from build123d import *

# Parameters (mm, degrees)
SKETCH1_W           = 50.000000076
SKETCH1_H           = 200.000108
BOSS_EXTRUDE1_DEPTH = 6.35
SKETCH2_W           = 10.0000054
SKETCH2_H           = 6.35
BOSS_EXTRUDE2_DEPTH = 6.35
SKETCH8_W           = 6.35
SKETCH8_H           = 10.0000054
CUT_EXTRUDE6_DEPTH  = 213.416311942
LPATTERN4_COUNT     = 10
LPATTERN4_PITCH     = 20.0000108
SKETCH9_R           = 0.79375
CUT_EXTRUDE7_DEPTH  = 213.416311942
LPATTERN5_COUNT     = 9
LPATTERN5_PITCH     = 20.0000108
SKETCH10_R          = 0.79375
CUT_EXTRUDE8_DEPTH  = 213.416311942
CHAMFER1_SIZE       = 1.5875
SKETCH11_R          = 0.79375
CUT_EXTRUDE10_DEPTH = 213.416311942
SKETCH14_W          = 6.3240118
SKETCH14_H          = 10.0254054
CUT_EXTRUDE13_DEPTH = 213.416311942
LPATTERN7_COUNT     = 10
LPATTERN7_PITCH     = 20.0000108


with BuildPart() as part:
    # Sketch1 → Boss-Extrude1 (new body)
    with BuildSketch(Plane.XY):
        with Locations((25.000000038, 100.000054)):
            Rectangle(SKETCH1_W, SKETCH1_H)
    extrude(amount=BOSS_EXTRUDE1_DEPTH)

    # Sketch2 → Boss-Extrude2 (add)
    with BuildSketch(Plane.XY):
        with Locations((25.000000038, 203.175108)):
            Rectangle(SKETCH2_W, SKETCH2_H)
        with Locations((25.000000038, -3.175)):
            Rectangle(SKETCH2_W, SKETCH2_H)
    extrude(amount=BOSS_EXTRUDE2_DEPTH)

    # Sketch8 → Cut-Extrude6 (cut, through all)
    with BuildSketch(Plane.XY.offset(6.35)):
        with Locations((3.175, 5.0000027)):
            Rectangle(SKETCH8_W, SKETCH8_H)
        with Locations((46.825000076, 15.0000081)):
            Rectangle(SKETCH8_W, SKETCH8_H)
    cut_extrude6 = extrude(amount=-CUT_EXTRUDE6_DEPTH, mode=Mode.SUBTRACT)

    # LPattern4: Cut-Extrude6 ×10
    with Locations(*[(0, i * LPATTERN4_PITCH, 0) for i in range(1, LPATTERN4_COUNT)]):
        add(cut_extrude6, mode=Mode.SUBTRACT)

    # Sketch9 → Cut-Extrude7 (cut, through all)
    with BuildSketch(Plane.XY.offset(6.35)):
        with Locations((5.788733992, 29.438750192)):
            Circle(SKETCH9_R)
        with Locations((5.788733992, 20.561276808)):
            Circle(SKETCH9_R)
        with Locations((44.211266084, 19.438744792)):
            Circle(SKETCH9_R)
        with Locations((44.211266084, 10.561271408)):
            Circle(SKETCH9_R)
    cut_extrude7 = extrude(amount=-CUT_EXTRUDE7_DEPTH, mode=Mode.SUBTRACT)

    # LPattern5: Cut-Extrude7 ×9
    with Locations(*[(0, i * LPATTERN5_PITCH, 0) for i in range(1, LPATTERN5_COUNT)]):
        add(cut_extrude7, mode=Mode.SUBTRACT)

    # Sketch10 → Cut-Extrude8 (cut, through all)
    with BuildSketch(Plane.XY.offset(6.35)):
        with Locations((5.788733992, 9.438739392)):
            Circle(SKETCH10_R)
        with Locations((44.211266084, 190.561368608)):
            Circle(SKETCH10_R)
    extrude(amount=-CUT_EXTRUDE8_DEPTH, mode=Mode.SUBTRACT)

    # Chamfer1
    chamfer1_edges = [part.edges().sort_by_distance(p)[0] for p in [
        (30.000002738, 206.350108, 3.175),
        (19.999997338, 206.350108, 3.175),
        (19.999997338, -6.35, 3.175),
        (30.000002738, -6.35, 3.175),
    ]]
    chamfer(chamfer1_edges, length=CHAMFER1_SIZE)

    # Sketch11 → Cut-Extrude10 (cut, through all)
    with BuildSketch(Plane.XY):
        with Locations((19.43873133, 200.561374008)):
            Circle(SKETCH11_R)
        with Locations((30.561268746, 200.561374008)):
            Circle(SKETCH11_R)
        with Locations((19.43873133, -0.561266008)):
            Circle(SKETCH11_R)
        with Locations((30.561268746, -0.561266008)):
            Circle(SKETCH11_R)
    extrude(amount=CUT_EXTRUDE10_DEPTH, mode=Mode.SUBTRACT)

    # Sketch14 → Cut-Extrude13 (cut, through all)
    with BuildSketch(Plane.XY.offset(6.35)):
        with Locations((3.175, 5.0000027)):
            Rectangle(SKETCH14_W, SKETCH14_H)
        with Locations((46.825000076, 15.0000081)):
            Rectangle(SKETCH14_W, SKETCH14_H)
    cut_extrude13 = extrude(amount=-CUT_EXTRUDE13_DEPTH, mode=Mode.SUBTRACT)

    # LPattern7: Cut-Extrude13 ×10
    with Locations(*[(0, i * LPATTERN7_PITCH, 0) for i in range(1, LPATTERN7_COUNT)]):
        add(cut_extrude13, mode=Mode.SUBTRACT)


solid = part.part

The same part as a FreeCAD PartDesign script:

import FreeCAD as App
import Part
import Sketcher
from FreeCAD import Vector
Q = App.Units.Quantity


def edges_at(feature, points):
    """Names of the edges that pass closest to the given points."""
    edges = feature.Shape.Edges
    near = lambda p: min(range(len(edges)), key=lambda i: edges[i].distToShape(Part.Vertex(*p))[0])
    return sorted({f"Edge{near(p) + 1}" for p in points})


def add_polygon(sketch, points):
    """Adds a closed chain of lines whose ends are joined by coincident constraints."""
    first, n = sketch.GeometryCount, len(points)
    for a, b in zip(points, points[1:] + points[:1]):
        sketch.addGeometry(Part.LineSegment(App.Vector(*a, 0), App.Vector(*b, 0)), False)
    for i in range(n):
        sketch.addConstraint(Sketcher.Constraint("Coincident", first + i, 2, first + (i + 1) % n, 1))

doc = App.newDocument("Part")
body = doc.addObject("PartDesign::Body", "Body")

# Sketch on XY plane
sketch1 = doc.addObject("Sketcher::SketchObject", "Sketch")
body.addObject(sketch1)
sketch1.AttachmentSupport = (doc.XY_Plane, [""])
sketch1.MapMode = "FlatFace"
add_polygon(sketch1, [(0, 200.000108), (0, 0), (50, 0), (50, 200.000108)])  # lines 0-3
sketch1.addConstraint(Sketcher.Constraint("Vertical", 0))
sketch1.addConstraint(Sketcher.Constraint("Horizontal", 1))
sketch1.addConstraint(Sketcher.Constraint("Vertical", 2))
sketch1.addConstraint(Sketcher.Constraint("Horizontal", 3))
sketch1.addConstraint(Sketcher.Constraint("Coincident", 0, 2, -1, 1))
sketch1.addConstraint(Sketcher.Constraint("DistanceX", 1, 1, 1, 2, 50.0))
sketch1.addConstraint(Sketcher.Constraint("DistanceY", 0, 2, 0, 1, 200.000108))
pad1 = doc.addObject("PartDesign::Pad", "Pad")
body.addObject(pad1)
pad1.Profile = sketch1
pad1.Length = Q("0.25 in")

# Sketch on XY plane
sketch2 = doc.addObject("Sketcher::SketchObject", "Sketch001")
body.addObject(sketch2)
sketch2.AttachmentSupport = (doc.XY_Plane, [""])
sketch2.MapMode = "FlatFace"
add_polygon(sketch2, [(20, 206), (20, 200), (30, 200), (30, 206)])  # lines 0-3
add_polygon(sketch2, [(20, 0), (20, -6), (30, -6), (30, 0)])  # lines 4-7
sketch2.addConstraint(Sketcher.Constraint("Vertical", 0))
sketch2.addConstraint(Sketcher.Constraint("Horizontal", 1))
sketch2.addConstraint(Sketcher.Constraint("Vertical", 2))
sketch2.addConstraint(Sketcher.Constraint("Horizontal", 3))
sketch2.addConstraint(Sketcher.Constraint("Vertical", 4))
sketch2.addConstraint(Sketcher.Constraint("Horizontal", 5))
sketch2.addConstraint(Sketcher.Constraint("Vertical", 6))
sketch2.addConstraint(Sketcher.Constraint("Horizontal", 7))
sketch2.addConstraint(Sketcher.Constraint("PointOnObject", 6, 2, -1))
sketch2.addConstraint(Sketcher.Constraint("Vertical", 3, 2, 4, 2))
sketch2.addConstraint(Sketcher.Constraint("Vertical", 2, 2, 5, 2))
sketch2.addConstraint(Sketcher.Constraint("Equal", 2, 4))
sketch2.addConstraint(Sketcher.Constraint("DistanceY", 0, 2, 0, 1, Q("0.25 in")))
sketch2.addConstraint(Sketcher.Constraint("DistanceX", 1, 1, 1, 2, 10.000005))
sketch2.addConstraint(Sketcher.Constraint("DistanceY", -1, 1, 0, 2, 200.000108))
sketch2.addConstraint(Sketcher.Constraint("DistanceX", -1, 1, 0, 2, 19.999997))
pad2 = doc.addObject("PartDesign::Pad", "Pad001")
body.addObject(pad2)
pad2.Profile = sketch2
pad2.Length = Q("0.25 in")

# Sketch on XY plane
sketch3 = doc.addObject("Sketcher::SketchObject", "Sketch002")
body.addObject(sketch3)
sketch3.AttachmentSupport = (doc.XY_Plane, [""])
sketch3.MapMode = "FlatFace"
sketch3.AttachmentOffset = App.Placement(Vector(0, 0, 0.25 * 25.4), App.Rotation())
add_polygon(sketch3, [(0, 10), (0, 0), (6, 0), (6, 10)])  # lines 0-3
add_polygon(sketch3, [(44, 20), (44, 10), (50, 10), (50, 20)])  # lines 4-7
sketch3.addConstraint(Sketcher.Constraint("Vertical", 0))
sketch3.addConstraint(Sketcher.Constraint("Horizontal", 1))
sketch3.addConstraint(Sketcher.Constraint("Vertical", 2))
sketch3.addConstraint(Sketcher.Constraint("Horizontal", 3))
sketch3.addConstraint(Sketcher.Constraint("Vertical", 4))
sketch3.addConstraint(Sketcher.Constraint("Horizontal", 5))
sketch3.addConstraint(Sketcher.Constraint("Vertical", 6))
sketch3.addConstraint(Sketcher.Constraint("Horizontal", 7))
sketch3.addConstraint(Sketcher.Constraint("Coincident", 0, 2, -1, 1))
sketch3.addConstraint(Sketcher.Constraint("Horizontal", 3, 2, 4, 2))
sketch3.addConstraint(Sketcher.Constraint("Equal", 3, 5))
sketch3.addConstraint(Sketcher.Constraint("Equal", 2, 4))
sketch3.addConstraint(Sketcher.Constraint("DistanceX", 1, 1, 1, 2, Q("0.25 in")))
sketch3.addConstraint(Sketcher.Constraint("DistanceX", -1, 1, 4, 2, 43.65))
sketch3.addConstraint(Sketcher.Constraint("DistanceY", 0, 2, 0, 1, 10.000005))
pocket1 = doc.addObject("PartDesign::Pocket", "Pocket")
body.addObject(pocket1)
pocket1.Profile = sketch3
pocket1.Type = "ThroughAll"
doc.recompute()

linearpattern = doc.addObject("PartDesign::LinearPattern", "LinearPattern")
body.addObject(linearpattern)
linearpattern.Originals = [pocket1]
linearpattern.Direction = (doc.Y_Axis, [""])
linearpattern.Mode = "offset"
linearpattern.Offset = 20.000011
linearpattern.Occurrences = 10
body.Tip = linearpattern

# Sketch on XY plane
sketch4 = doc.addObject("Sketcher::SketchObject", "Sketch003")
body.addObject(sketch4)
sketch4.AttachmentSupport = (doc.XY_Plane, [""])
sketch4.MapMode = "FlatFace"
sketch4.AttachmentOffset = App.Placement(Vector(0, 0, 0.25 * 25.4), App.Rotation())
sketch4.addGeometry(Part.Circle(Vector(5.8, 29.4, 0), Vector(0, 0, 1), 0.8), False)
sketch4.addGeometry(Part.Circle(Vector(5.8, 20.6, 0), Vector(0, 0, 1), 0.8), False)
sketch4.addGeometry(Part.Circle(Vector(44.2, 19.4, 0), Vector(0, 0, 1), 0.8), False)
sketch4.addGeometry(Part.Circle(Vector(44.2, 10.6, 0), Vector(0, 0, 1), 0.8), False)
sketch4.addConstraint(Sketcher.Constraint("Equal", 0, 1))
sketch4.addConstraint(Sketcher.Constraint("Equal", 1, 2))
sketch4.addConstraint(Sketcher.Constraint("Equal", 2, 3))
sketch4.addConstraint(Sketcher.Constraint("Vertical", 0, 3, 1, 3))
sketch4.addConstraint(Sketcher.Constraint("Vertical", 2, 3, 3, 3))
sketch4.addConstraint(Sketcher.Constraint("Diameter", 0, Q("0.0625 in")))
sketch4.addConstraint(Sketcher.Constraint("DistanceY", -1, 1, 0, 3, 29.43875))
sketch4.addConstraint(Sketcher.Constraint("DistanceY", -1, 1, 3, 3, 10.561271))
sketch4.addConstraint(Sketcher.Constraint("DistanceX", -1, 1, 0, 3, 5.788734))
sketch4.addConstraint(Sketcher.Constraint("DistanceY", -1, 1, 1, 3, 20.561277))
sketch4.addConstraint(Sketcher.Constraint("DistanceX", -1, 1, 2, 3, 44.211266))
sketch4.addConstraint(Sketcher.Constraint("DistanceY", -1, 1, 2, 3, 19.438745))
pocket2 = doc.addObject("PartDesign::Pocket", "Pocket001")
body.addObject(pocket2)
pocket2.Profile = sketch4
pocket2.Type = "ThroughAll"
doc.recompute()

linearpattern2 = doc.addObject("PartDesign::LinearPattern", "LinearPattern001")
body.addObject(linearpattern2)
linearpattern2.Originals = [pocket2]
linearpattern2.Direction = (doc.Y_Axis, [""])
linearpattern2.Mode = "offset"
linearpattern2.Offset = 20.000011
linearpattern2.Occurrences = 9
body.Tip = linearpattern2

# Sketch on XY plane
sketch5 = doc.addObject("Sketcher::SketchObject", "Sketch004")
body.addObject(sketch5)
sketch5.AttachmentSupport = (doc.XY_Plane, [""])
sketch5.MapMode = "FlatFace"
sketch5.AttachmentOffset = App.Placement(Vector(0, 0, 0.25 * 25.4), App.Rotation())
sketch5.addGeometry(Part.Circle(Vector(5.8, 9.4, 0), Vector(0, 0, 1), 0.8), False)
sketch5.addGeometry(Part.Circle(Vector(44.2, 190.6, 0), Vector(0, 0, 1), 0.8), False)
sketch5.addConstraint(Sketcher.Constraint("Equal", 0, 1))
sketch5.addConstraint(Sketcher.Constraint("Diameter", 0, Q("0.0625 in")))
sketch5.addConstraint(Sketcher.Constraint("DistanceY", -1, 1, 0, 3, 9.438739))
sketch5.addConstraint(Sketcher.Constraint("DistanceY", -1, 1, 1, 3, 190.561369))
sketch5.addConstraint(Sketcher.Constraint("DistanceX", -1, 1, 0, 3, 5.788734))
sketch5.addConstraint(Sketcher.Constraint("DistanceX", -1, 1, 1, 3, 44.211266))
pocket3 = doc.addObject("PartDesign::Pocket", "Pocket002")
body.addObject(pocket3)
pocket3.Profile = sketch5
pocket3.Type = "ThroughAll"
doc.recompute()

chamfer = doc.addObject("PartDesign::Chamfer", "Chamfer")
body.addObject(chamfer)
chamfer.Base = (pocket3, edges_at(pocket3, [
    (30, 206.35, 3.175),
    (20, 206.35, 3.175),
    (20, -6.35, 3.175),
    (30, -6.35, 3.175),
]))
chamfer.Size = Q("0.0625 in")

# Sketch on XY plane
sketch6 = doc.addObject("Sketcher::SketchObject", "Sketch005")
body.addObject(sketch6)
sketch6.AttachmentSupport = (doc.XY_Plane, [""])
sketch6.MapMode = "FlatFace"
sketch6.addGeometry(Part.Circle(Vector(19.4, 200.6, 0), Vector(0, 0, 1), 0.8), False)
sketch6.addGeometry(Part.Circle(Vector(30.6, 200.6, 0), Vector(0, 0, 1), 0.8), False)
sketch6.addGeometry(Part.Circle(Vector(19.4, -0.6, 0), Vector(0, 0, 1), 0.8), False)
sketch6.addGeometry(Part.Circle(Vector(30.6, -0.6, 0), Vector(0, 0, 1), 0.8), False)
sketch6.addConstraint(Sketcher.Constraint("Equal", 0, 1))
sketch6.addConstraint(Sketcher.Constraint("Equal", 1, 2))
sketch6.addConstraint(Sketcher.Constraint("Equal", 2, 3))
sketch6.addConstraint(Sketcher.Constraint("Horizontal", 0, 3, 1, 3))
sketch6.addConstraint(Sketcher.Constraint("Horizontal", 2, 3, 3, 3))
sketch6.addConstraint(Sketcher.Constraint("Vertical", 0, 3, 2, 3))
sketch6.addConstraint(Sketcher.Constraint("Vertical", 1, 3, 3, 3))
sketch6.addConstraint(Sketcher.Constraint("Diameter", 0, Q("0.0625 in")))
sketch6.addConstraint(Sketcher.Constraint("DistanceX", -1, 1, 0, 3, 19.438731))
sketch6.addConstraint(Sketcher.Constraint("DistanceX", -1, 1, 1, 3, 30.561269))
sketch6.addConstraint(Sketcher.Constraint("DistanceY", 2, 3, 0, 3, 201.12264))
sketch6.addConstraint(Sketcher.Constraint("DistanceY", -1, 1, 0, 3, 200.561374))
pocket4 = doc.addObject("PartDesign::Pocket", "Pocket003")
body.addObject(pocket4)
pocket4.Profile = sketch6
pocket4.Type = "ThroughAll"
pocket4.Reversed = True

# Sketch on XY plane
sketch7 = doc.addObject("Sketcher::SketchObject", "Sketch006")
body.addObject(sketch7)
sketch7.AttachmentSupport = (doc.XY_Plane, [""])
sketch7.MapMode = "FlatFace"
sketch7.AttachmentOffset = App.Placement(Vector(0, 0, 0.25 * 25.4), App.Rotation())
add_polygon(sketch7, [(0, 10), (0, 0), (6, 0), (6, 10)])  # lines 0-3
add_polygon(sketch7, [(44, 20), (44, 10), (50, 10), (50, 20)])  # lines 4-7
sketch7.addConstraint(Sketcher.Constraint("Vertical", 0))
sketch7.addConstraint(Sketcher.Constraint("Horizontal", 1))
sketch7.addConstraint(Sketcher.Constraint("Vertical", 2))
sketch7.addConstraint(Sketcher.Constraint("Horizontal", 3))
sketch7.addConstraint(Sketcher.Constraint("Vertical", 4))
sketch7.addConstraint(Sketcher.Constraint("Horizontal", 5))
sketch7.addConstraint(Sketcher.Constraint("Vertical", 6))
sketch7.addConstraint(Sketcher.Constraint("Horizontal", 7))
sketch7.addConstraint(Sketcher.Constraint("Equal", 3, 5))
sketch7.addConstraint(Sketcher.Constraint("Equal", 2, 4))
sketch7.addConstraint(Sketcher.Constraint("DistanceY", 4, 2, 2, 2, Q("0.001 in")))
sketch7.addConstraint(Sketcher.Constraint("DistanceY", 0, 2, -1, 1, Q("0.0005 in")))
sketch7.addConstraint(Sketcher.Constraint("DistanceX", 1, 1, 1, 2, 6.324012))
sketch7.addConstraint(Sketcher.Constraint("DistanceX", 3, 2, 4, 2, 43.65))
sketch7.addConstraint(Sketcher.Constraint("DistanceY", 0, 2, 0, 1, 10.025405))
sketch7.addConstraint(Sketcher.Constraint("DistanceX", -1, 1, 0, 2, 0.012994))
pocket5 = doc.addObject("PartDesign::Pocket", "Pocket004")
body.addObject(pocket5)
pocket5.Profile = sketch7
pocket5.Type = "ThroughAll"
doc.recompute()

linearpattern3 = doc.addObject("PartDesign::LinearPattern", "LinearPattern002")
body.addObject(linearpattern3)
linearpattern3.Originals = [pocket5]
linearpattern3.Direction = (doc.Y_Axis, [""])
linearpattern3.Mode = "offset"
linearpattern3.Offset = 20.000011
linearpattern3.Occurrences = 10
body.Tip = linearpattern3

doc.recompute()
